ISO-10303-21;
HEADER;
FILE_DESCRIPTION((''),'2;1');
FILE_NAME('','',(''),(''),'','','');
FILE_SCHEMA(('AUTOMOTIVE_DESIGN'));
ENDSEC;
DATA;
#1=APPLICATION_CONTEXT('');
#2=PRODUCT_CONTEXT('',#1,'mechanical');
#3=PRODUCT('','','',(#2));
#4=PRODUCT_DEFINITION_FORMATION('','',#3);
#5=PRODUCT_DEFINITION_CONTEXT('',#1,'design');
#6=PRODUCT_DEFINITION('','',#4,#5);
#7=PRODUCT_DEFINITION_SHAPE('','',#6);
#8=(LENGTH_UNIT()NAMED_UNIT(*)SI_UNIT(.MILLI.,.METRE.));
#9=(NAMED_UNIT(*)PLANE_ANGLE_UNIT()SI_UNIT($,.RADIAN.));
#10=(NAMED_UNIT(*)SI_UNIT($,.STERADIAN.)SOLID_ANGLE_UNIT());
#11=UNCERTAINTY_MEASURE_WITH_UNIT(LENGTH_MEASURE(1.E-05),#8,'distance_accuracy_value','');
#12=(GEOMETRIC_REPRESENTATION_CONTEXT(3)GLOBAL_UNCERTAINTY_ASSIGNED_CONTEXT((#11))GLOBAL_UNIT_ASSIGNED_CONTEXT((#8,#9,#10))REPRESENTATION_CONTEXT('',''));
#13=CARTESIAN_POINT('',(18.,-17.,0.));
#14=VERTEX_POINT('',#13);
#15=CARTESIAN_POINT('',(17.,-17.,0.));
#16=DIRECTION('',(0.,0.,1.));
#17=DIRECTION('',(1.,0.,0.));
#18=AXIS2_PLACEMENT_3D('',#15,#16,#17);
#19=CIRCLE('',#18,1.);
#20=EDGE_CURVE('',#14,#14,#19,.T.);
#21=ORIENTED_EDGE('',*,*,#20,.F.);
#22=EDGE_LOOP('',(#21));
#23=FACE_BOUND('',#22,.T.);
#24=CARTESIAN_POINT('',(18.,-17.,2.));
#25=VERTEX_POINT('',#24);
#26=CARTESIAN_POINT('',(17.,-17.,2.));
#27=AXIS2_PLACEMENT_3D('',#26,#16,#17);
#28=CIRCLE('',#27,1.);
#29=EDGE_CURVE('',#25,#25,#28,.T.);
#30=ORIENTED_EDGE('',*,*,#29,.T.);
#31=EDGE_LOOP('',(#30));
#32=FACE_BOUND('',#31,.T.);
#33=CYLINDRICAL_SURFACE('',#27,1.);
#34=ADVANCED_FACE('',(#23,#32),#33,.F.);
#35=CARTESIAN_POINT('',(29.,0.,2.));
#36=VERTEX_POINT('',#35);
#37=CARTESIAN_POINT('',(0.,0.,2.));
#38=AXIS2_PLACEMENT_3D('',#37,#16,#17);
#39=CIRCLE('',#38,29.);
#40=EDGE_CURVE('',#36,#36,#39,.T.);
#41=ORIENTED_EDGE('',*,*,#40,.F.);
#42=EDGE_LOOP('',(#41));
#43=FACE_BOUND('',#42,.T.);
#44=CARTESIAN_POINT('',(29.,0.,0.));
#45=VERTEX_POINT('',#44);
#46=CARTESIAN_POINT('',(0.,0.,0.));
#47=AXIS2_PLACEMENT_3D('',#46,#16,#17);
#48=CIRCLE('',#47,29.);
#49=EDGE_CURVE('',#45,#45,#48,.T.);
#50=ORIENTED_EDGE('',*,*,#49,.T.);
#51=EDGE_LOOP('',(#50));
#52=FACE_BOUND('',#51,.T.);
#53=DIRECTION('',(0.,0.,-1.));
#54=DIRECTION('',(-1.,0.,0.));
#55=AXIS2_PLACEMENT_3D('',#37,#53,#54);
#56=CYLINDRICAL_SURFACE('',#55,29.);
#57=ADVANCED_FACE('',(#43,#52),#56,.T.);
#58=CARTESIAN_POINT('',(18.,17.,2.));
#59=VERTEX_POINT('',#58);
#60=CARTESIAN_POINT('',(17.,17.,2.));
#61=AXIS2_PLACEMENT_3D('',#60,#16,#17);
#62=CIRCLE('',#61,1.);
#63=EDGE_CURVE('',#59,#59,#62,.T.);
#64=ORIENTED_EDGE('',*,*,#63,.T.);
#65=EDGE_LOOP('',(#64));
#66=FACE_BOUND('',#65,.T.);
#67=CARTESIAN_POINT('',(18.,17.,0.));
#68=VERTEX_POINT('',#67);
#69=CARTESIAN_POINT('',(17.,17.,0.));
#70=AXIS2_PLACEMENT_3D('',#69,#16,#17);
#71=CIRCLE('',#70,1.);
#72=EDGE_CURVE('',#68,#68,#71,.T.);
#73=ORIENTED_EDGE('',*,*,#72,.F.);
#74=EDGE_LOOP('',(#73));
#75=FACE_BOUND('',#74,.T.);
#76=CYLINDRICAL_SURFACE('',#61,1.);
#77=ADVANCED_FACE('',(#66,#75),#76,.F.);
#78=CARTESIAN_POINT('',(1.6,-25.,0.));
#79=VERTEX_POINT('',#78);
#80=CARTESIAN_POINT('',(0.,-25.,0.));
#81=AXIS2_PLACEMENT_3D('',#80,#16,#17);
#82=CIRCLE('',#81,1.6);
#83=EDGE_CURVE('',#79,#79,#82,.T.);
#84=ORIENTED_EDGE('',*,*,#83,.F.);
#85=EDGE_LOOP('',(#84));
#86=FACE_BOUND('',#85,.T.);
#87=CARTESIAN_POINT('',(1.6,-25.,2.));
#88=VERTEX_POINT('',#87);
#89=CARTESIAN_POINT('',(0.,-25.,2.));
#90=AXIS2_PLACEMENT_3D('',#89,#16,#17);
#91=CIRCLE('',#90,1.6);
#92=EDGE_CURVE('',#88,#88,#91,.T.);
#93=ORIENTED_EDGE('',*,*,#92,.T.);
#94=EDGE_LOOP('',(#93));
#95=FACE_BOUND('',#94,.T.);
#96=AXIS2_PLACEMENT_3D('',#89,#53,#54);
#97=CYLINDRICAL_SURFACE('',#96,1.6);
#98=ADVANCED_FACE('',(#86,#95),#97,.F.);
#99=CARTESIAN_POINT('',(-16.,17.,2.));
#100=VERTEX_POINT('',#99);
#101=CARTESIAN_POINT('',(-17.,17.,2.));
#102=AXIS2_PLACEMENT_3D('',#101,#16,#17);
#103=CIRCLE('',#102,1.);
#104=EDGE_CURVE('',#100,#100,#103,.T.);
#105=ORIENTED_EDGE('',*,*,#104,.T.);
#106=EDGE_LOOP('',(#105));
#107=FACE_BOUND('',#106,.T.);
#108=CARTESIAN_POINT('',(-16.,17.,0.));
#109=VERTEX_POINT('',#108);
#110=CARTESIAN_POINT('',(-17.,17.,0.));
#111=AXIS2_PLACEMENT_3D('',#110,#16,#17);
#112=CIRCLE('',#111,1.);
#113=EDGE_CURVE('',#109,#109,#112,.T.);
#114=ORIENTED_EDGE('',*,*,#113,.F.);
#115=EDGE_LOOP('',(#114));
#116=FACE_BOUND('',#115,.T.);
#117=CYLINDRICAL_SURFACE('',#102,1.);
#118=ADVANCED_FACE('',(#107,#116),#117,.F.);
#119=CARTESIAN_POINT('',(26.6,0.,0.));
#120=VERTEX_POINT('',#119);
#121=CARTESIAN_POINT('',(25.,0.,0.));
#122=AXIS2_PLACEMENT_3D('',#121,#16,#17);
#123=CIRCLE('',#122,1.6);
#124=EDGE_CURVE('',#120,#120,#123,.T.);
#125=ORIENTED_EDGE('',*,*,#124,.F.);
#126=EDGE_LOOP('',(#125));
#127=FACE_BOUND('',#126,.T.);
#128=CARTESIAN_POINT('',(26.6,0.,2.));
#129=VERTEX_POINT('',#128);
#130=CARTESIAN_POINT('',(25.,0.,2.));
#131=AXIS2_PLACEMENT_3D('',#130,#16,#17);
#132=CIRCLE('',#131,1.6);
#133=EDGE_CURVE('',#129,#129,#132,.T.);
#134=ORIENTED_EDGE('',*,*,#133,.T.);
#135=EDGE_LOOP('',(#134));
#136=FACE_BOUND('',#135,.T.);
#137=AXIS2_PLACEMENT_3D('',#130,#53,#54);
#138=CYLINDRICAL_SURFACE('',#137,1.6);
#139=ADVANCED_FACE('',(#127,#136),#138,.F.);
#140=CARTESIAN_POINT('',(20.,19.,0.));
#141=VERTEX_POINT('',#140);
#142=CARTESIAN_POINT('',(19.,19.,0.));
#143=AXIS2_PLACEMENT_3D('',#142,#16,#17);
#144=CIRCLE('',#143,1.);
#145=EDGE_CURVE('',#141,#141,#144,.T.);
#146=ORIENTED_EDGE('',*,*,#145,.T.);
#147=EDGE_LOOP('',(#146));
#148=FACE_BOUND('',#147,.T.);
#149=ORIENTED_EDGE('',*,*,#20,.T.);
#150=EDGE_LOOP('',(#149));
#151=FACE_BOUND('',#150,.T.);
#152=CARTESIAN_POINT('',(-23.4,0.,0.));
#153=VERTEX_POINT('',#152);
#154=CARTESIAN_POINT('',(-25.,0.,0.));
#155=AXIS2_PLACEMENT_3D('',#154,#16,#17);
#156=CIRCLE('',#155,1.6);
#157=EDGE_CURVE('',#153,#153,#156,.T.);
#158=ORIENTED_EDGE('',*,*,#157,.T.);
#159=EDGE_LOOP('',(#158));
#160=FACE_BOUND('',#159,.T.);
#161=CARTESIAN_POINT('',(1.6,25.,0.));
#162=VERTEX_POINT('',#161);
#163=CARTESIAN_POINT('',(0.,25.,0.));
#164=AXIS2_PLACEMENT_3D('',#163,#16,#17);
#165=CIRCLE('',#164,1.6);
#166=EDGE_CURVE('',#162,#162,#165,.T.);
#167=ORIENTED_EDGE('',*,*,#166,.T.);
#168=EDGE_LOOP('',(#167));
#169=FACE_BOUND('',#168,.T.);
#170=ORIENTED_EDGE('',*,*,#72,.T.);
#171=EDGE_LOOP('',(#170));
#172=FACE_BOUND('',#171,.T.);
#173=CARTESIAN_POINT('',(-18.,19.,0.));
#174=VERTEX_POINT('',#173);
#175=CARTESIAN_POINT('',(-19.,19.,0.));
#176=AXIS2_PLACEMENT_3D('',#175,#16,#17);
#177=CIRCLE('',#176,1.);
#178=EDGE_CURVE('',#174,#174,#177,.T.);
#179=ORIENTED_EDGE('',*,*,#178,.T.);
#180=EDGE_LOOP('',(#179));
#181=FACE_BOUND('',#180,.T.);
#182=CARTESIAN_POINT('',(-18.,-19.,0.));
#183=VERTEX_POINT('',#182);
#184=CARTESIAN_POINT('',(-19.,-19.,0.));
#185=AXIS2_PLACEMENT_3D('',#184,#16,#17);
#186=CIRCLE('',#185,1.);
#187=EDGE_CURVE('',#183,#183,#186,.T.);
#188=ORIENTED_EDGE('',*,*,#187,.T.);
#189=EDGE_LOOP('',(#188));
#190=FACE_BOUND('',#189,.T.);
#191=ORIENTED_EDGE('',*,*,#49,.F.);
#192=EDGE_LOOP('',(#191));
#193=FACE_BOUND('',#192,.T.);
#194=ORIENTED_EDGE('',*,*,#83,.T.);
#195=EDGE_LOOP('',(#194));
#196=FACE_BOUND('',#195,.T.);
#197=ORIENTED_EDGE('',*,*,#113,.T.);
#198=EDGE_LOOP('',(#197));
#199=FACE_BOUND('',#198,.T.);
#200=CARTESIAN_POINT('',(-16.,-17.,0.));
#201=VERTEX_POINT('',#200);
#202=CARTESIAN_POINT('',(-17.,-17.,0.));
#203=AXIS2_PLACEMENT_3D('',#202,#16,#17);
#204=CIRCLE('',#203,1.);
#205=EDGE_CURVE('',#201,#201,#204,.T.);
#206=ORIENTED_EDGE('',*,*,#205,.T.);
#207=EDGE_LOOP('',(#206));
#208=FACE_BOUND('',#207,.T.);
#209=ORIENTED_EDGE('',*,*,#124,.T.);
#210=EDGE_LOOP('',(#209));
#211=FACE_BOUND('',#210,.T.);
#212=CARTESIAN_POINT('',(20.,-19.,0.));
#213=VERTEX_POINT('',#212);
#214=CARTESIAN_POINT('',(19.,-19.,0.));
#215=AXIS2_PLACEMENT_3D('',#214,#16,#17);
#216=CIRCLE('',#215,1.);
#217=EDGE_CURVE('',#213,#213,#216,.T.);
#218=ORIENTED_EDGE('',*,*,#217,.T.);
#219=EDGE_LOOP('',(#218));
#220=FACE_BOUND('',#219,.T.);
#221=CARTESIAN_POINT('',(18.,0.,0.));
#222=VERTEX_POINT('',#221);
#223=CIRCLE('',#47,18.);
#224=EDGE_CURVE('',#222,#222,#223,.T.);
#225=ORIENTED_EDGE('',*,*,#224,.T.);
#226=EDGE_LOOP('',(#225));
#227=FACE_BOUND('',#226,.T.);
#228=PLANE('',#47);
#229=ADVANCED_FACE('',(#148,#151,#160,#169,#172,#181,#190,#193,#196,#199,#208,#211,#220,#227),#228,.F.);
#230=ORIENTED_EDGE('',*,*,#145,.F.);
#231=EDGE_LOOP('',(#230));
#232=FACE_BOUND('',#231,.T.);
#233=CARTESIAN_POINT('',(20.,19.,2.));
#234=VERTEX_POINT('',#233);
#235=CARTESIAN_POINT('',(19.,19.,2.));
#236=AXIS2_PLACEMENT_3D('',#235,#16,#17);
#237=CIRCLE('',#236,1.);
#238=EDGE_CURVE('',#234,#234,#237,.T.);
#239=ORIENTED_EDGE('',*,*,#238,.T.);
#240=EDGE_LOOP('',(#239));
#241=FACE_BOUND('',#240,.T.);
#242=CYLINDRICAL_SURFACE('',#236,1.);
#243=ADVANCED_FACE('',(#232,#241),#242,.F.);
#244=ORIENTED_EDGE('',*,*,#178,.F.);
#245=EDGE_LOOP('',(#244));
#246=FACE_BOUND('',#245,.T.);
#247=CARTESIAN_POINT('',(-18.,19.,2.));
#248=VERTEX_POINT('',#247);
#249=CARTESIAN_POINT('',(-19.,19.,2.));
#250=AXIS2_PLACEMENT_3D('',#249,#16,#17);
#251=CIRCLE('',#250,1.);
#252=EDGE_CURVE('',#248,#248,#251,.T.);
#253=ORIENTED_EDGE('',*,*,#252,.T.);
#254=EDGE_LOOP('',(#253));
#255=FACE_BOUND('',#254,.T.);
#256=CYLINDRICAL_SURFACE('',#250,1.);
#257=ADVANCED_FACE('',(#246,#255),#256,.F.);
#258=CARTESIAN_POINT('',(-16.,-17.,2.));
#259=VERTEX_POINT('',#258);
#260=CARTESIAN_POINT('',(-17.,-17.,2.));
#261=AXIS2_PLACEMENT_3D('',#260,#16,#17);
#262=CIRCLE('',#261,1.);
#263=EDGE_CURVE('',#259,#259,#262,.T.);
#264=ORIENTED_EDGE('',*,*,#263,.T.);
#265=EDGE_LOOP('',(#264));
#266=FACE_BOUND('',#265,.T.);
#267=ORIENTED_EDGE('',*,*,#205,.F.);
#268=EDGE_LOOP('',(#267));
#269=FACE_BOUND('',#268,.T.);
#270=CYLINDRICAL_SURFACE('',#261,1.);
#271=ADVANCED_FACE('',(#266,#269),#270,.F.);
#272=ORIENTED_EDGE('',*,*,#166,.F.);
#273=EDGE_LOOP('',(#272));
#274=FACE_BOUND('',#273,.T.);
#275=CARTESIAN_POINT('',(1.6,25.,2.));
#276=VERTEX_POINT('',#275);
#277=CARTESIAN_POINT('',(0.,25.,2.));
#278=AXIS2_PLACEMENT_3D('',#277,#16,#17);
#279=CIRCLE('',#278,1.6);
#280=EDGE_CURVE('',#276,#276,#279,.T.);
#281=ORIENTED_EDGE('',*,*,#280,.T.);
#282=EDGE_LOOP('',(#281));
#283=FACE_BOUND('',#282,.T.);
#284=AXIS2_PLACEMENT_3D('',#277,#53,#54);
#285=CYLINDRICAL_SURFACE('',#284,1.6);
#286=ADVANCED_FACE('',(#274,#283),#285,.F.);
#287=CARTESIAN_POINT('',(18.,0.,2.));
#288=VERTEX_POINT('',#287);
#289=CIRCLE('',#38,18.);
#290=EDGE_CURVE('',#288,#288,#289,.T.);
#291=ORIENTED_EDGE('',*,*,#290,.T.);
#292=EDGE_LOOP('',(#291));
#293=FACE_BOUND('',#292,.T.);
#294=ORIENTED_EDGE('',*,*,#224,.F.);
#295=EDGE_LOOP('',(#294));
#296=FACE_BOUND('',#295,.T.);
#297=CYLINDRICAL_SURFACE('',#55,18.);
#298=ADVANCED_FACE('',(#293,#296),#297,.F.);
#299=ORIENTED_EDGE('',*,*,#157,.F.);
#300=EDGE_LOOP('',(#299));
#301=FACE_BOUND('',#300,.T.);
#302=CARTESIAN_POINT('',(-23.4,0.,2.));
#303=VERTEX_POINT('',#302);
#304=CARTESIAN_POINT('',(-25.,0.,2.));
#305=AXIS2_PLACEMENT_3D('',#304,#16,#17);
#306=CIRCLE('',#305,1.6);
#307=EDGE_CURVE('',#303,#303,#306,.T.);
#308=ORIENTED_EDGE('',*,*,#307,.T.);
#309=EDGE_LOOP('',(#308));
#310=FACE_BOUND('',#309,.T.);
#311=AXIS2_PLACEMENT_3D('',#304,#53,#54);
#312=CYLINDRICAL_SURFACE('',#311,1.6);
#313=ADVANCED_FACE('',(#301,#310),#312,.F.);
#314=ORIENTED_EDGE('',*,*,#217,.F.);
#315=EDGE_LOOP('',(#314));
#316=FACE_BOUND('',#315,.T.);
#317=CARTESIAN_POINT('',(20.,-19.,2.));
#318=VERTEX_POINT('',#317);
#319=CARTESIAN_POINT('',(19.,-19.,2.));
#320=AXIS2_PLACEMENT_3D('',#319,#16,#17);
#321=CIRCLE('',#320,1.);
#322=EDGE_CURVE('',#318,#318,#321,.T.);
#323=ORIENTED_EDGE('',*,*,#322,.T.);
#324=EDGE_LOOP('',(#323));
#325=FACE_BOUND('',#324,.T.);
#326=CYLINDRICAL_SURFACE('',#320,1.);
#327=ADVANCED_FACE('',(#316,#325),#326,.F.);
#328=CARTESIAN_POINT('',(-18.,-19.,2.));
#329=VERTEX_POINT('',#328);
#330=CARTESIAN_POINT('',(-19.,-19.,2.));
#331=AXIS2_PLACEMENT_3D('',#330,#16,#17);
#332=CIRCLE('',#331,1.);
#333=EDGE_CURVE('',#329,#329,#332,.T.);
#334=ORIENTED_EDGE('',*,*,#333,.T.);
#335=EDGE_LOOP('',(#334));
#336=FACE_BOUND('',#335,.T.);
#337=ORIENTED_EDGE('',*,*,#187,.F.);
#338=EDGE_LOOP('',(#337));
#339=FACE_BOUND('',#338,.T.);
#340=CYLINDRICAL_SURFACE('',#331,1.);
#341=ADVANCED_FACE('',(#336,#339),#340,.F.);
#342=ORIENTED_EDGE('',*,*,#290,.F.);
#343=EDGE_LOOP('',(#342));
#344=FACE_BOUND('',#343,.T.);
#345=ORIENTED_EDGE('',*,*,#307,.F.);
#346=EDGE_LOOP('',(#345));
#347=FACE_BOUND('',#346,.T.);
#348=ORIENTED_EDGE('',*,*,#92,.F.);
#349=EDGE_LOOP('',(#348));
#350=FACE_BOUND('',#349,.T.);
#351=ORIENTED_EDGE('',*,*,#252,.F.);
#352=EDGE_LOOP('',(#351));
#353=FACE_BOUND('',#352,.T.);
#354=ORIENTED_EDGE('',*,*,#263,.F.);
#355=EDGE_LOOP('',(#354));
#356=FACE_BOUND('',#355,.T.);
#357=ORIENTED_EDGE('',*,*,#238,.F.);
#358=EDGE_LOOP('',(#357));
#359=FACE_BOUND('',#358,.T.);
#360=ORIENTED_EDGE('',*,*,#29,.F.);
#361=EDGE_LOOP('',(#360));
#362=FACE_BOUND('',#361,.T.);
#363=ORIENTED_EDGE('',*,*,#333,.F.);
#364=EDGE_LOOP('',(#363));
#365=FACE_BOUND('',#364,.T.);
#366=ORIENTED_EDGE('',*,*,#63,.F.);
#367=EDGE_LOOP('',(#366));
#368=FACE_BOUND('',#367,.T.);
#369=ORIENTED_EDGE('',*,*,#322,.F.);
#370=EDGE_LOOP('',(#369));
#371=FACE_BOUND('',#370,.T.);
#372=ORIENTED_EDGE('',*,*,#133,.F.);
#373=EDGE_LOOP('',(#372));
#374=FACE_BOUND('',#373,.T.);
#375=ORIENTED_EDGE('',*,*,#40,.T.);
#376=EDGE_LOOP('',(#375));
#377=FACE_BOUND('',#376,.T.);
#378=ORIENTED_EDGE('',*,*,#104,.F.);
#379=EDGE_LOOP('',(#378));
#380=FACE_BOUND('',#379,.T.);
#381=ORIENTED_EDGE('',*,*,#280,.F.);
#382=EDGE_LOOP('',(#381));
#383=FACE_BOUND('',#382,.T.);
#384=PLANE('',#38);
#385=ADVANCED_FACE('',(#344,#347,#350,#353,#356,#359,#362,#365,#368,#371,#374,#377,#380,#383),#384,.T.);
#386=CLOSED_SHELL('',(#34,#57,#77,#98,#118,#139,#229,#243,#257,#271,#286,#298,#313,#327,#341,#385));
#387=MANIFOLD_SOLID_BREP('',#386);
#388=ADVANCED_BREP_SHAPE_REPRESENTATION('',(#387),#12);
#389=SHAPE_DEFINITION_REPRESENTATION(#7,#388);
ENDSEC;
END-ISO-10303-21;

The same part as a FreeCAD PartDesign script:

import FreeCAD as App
import Part
import Sketcher

V = App.Vector
Q = App.Units.Quantity

doc = App.newDocument("Part")
params = doc.addObject("Spreadsheet::Sheet", "Params")
for row, (alias, value) in enumerate([
    ("sketch1_diameter", "58 mm"),
    ("sketch1_diameter2", "36 mm"),
    ("pad1_length", "2 mm"),
    ("sketch2_diameter", "2 mm"),
    ("hole_diameter", "2 mm"),
    ("sketch3_diameter", "3.2 mm"),
], start=1):
    params.set(f"A{row}", alias)
    params.set(f"B{row}", "=" + value)
    params.setAlias(f"B{row}", alias)

body = doc.addObject("PartDesign::Body", "Body")

sketch1 = body.newObject("Sketcher::SketchObject", "Sketch")
sketch1.AttachmentSupport = (doc.getObject("XY_Plane"), [""])
sketch1.MapMode = "FlatFace"
sketch1.addGeometry([
    Part.Circle(V(0, 0, 0), V(0, 0, 1), 29),
    Part.Circle(V(0, 0, 0), V(0, 0, 1), 18),
], False)
sketch1.addConstraint([
    Sketcher.Constraint("Coincident", 0, 3, -1, 1),
    Sketcher.Constraint("Coincident", 1, 3, -1, 1),
    Sketcher.Constraint("Diameter", 0, Q("58 mm")),
    Sketcher.Constraint("Diameter", 1, Q("36 mm")),
])
sketch1.setExpression("Constraints[2]", "Params.sketch1_diameter")
sketch1.setExpression("Constraints[3]", "Params.sketch1_diameter2")
pad1 = body.newObject("PartDesign::Pad", "Pad")
pad1.Profile = sketch1
pad1.setExpression("Length", "Params.pad1_length")

sketch2 = body.newObject("Sketcher::SketchObject", "Sketch001")
sketch2.AttachmentSupport = (doc.getObject("XY_Plane"), [""])
sketch2.MapMode = "FlatFace"
sketch2.AttachmentOffset = App.Placement(V(0, 0, 2), App.Rotation())
sketch2.addGeometry([
    Part.Circle(V(-19, 19, 0), V(0, 0, 1), 1),
    Part.Circle(V(-17, 17, 0), V(0, 0, 1), 1),
    Part.Circle(V(17, 17, 0), V(0, 0, 1), 1),
    Part.Circle(V(19, 19, 0), V(0, 0, 1), 1),
    Part.Circle(V(17, -17, 0), V(0, 0, 1), 1),
    Part.Circle(V(19, -19, 0), V(0, 0, 1), 1),
    Part.Circle(V(-19, -19, 0), V(0, 0, 1), 1),
    Part.Circle(V(-17, -17, 0), V(0, 0, 1), 1),
], False)
sketch2.addConstraint([
    Sketcher.Constraint("Equal", 0, 1),
    Sketcher.Constraint("Equal", 1, 2),
    Sketcher.Constraint("Equal", 2, 3),
    Sketcher.Constraint("Equal", 3, 4),
    Sketcher.Constraint("Equal", 4, 5),
    Sketcher.Constraint("Equal", 5, 6),
    Sketcher.Constraint("Equal", 6, 7),
    Sketcher.Constraint("Symmetric", 1, 3, 4, 3, -1, 1),
    Sketcher.Constraint("Symmetric", 0, 3, 5, 3, -1, 1),
    Sketcher.Constraint("Symmetric", 3, 3, 6, 3, -1, 1),
    Sketcher.Constraint("Symmetric", 2, 3, 7, 3, -1, 1),
    Sketcher.Constraint("Symmetric", 1, 3, 2, 3, -2),
    Sketcher.Constraint("Symmetric", 0, 3, 3, 3, -2),
    Sketcher.Constraint("Diameter", 0, Q("2 mm")),
    Sketcher.Constraint("DistanceX", 0, 3, -1, 1, Q("19 mm")),
    Sketcher.Constraint("DistanceY", -1, 1, 0, 3, Q("19 mm")),
    Sketcher.Constraint("DistanceX", 1, 3, -1, 1, Q("17 mm")),
    Sketcher.Constraint("DistanceY", -1, 1, 1, 3, Q("17 mm")),
])
sketch2.setExpression("Constraints[13]", "Params.sketch2_diameter")
doc.recompute()
hole = body.newObject("PartDesign::Hole", "Hole")
hole.Profile = sketch2
hole.ThreadType = "None"
hole.setExpression("Diameter", "Params.hole_diameter")
hole.DepthType = "ThroughAll"

sketch3 = body.newObject("Sketcher::SketchObject", "Sketch002")
sketch3.AttachmentSupport = (doc.getObject("XY_Plane"), [""])
sketch3.MapMode = "FlatFace"
sketch3.addGeometry([
    Part.Circle(V(0, 25, 0), V(0, 0, 1), 1.6),
    Part.Circle(V(-25, 0, 0), V(0, 0, 1), 1.6),
    Part.Circle(V(25, 0, 0), V(0, 0, 1), 1.6),
    Part.Circle(V(0, -25, 0), V(0, 0, 1), 1.6),
], False)
sketch3.addConstraint([
    Sketcher.Constraint("Equal", 0, 1),
    Sketcher.Constraint("Equal", 1, 2),
    Sketcher.Constraint("Equal", 2, 3),
    Sketcher.Constraint("Symmetric", 1, 3, 2, 3, -1, 1),
    Sketcher.Constraint("Symmetric", 0, 3, 3, 3, -1, 1),
    Sketcher.Constraint("PointOnObject", 0, 3, -2),
    Sketcher.Constraint("PointOnObject", 1, 3, -1),
    Sketcher.Constraint("Diameter", 0, Q("3.2 mm")),
    Sketcher.Constraint("DistanceY", -1, 1, 0, 3, Q("25 mm")),
    Sketcher.Constraint("DistanceX", 1, 3, -1, 1, Q("25 mm")),
])
sketch3.setExpression("Constraints[7]", "Params.sketch3_diameter")
pocket1 = body.newObject("PartDesign::Pocket", "Pocket")
pocket1.Profile = sketch3
pocket1.Type = "ThroughAll"
pocket1.Reversed = True

doc.recompute()
